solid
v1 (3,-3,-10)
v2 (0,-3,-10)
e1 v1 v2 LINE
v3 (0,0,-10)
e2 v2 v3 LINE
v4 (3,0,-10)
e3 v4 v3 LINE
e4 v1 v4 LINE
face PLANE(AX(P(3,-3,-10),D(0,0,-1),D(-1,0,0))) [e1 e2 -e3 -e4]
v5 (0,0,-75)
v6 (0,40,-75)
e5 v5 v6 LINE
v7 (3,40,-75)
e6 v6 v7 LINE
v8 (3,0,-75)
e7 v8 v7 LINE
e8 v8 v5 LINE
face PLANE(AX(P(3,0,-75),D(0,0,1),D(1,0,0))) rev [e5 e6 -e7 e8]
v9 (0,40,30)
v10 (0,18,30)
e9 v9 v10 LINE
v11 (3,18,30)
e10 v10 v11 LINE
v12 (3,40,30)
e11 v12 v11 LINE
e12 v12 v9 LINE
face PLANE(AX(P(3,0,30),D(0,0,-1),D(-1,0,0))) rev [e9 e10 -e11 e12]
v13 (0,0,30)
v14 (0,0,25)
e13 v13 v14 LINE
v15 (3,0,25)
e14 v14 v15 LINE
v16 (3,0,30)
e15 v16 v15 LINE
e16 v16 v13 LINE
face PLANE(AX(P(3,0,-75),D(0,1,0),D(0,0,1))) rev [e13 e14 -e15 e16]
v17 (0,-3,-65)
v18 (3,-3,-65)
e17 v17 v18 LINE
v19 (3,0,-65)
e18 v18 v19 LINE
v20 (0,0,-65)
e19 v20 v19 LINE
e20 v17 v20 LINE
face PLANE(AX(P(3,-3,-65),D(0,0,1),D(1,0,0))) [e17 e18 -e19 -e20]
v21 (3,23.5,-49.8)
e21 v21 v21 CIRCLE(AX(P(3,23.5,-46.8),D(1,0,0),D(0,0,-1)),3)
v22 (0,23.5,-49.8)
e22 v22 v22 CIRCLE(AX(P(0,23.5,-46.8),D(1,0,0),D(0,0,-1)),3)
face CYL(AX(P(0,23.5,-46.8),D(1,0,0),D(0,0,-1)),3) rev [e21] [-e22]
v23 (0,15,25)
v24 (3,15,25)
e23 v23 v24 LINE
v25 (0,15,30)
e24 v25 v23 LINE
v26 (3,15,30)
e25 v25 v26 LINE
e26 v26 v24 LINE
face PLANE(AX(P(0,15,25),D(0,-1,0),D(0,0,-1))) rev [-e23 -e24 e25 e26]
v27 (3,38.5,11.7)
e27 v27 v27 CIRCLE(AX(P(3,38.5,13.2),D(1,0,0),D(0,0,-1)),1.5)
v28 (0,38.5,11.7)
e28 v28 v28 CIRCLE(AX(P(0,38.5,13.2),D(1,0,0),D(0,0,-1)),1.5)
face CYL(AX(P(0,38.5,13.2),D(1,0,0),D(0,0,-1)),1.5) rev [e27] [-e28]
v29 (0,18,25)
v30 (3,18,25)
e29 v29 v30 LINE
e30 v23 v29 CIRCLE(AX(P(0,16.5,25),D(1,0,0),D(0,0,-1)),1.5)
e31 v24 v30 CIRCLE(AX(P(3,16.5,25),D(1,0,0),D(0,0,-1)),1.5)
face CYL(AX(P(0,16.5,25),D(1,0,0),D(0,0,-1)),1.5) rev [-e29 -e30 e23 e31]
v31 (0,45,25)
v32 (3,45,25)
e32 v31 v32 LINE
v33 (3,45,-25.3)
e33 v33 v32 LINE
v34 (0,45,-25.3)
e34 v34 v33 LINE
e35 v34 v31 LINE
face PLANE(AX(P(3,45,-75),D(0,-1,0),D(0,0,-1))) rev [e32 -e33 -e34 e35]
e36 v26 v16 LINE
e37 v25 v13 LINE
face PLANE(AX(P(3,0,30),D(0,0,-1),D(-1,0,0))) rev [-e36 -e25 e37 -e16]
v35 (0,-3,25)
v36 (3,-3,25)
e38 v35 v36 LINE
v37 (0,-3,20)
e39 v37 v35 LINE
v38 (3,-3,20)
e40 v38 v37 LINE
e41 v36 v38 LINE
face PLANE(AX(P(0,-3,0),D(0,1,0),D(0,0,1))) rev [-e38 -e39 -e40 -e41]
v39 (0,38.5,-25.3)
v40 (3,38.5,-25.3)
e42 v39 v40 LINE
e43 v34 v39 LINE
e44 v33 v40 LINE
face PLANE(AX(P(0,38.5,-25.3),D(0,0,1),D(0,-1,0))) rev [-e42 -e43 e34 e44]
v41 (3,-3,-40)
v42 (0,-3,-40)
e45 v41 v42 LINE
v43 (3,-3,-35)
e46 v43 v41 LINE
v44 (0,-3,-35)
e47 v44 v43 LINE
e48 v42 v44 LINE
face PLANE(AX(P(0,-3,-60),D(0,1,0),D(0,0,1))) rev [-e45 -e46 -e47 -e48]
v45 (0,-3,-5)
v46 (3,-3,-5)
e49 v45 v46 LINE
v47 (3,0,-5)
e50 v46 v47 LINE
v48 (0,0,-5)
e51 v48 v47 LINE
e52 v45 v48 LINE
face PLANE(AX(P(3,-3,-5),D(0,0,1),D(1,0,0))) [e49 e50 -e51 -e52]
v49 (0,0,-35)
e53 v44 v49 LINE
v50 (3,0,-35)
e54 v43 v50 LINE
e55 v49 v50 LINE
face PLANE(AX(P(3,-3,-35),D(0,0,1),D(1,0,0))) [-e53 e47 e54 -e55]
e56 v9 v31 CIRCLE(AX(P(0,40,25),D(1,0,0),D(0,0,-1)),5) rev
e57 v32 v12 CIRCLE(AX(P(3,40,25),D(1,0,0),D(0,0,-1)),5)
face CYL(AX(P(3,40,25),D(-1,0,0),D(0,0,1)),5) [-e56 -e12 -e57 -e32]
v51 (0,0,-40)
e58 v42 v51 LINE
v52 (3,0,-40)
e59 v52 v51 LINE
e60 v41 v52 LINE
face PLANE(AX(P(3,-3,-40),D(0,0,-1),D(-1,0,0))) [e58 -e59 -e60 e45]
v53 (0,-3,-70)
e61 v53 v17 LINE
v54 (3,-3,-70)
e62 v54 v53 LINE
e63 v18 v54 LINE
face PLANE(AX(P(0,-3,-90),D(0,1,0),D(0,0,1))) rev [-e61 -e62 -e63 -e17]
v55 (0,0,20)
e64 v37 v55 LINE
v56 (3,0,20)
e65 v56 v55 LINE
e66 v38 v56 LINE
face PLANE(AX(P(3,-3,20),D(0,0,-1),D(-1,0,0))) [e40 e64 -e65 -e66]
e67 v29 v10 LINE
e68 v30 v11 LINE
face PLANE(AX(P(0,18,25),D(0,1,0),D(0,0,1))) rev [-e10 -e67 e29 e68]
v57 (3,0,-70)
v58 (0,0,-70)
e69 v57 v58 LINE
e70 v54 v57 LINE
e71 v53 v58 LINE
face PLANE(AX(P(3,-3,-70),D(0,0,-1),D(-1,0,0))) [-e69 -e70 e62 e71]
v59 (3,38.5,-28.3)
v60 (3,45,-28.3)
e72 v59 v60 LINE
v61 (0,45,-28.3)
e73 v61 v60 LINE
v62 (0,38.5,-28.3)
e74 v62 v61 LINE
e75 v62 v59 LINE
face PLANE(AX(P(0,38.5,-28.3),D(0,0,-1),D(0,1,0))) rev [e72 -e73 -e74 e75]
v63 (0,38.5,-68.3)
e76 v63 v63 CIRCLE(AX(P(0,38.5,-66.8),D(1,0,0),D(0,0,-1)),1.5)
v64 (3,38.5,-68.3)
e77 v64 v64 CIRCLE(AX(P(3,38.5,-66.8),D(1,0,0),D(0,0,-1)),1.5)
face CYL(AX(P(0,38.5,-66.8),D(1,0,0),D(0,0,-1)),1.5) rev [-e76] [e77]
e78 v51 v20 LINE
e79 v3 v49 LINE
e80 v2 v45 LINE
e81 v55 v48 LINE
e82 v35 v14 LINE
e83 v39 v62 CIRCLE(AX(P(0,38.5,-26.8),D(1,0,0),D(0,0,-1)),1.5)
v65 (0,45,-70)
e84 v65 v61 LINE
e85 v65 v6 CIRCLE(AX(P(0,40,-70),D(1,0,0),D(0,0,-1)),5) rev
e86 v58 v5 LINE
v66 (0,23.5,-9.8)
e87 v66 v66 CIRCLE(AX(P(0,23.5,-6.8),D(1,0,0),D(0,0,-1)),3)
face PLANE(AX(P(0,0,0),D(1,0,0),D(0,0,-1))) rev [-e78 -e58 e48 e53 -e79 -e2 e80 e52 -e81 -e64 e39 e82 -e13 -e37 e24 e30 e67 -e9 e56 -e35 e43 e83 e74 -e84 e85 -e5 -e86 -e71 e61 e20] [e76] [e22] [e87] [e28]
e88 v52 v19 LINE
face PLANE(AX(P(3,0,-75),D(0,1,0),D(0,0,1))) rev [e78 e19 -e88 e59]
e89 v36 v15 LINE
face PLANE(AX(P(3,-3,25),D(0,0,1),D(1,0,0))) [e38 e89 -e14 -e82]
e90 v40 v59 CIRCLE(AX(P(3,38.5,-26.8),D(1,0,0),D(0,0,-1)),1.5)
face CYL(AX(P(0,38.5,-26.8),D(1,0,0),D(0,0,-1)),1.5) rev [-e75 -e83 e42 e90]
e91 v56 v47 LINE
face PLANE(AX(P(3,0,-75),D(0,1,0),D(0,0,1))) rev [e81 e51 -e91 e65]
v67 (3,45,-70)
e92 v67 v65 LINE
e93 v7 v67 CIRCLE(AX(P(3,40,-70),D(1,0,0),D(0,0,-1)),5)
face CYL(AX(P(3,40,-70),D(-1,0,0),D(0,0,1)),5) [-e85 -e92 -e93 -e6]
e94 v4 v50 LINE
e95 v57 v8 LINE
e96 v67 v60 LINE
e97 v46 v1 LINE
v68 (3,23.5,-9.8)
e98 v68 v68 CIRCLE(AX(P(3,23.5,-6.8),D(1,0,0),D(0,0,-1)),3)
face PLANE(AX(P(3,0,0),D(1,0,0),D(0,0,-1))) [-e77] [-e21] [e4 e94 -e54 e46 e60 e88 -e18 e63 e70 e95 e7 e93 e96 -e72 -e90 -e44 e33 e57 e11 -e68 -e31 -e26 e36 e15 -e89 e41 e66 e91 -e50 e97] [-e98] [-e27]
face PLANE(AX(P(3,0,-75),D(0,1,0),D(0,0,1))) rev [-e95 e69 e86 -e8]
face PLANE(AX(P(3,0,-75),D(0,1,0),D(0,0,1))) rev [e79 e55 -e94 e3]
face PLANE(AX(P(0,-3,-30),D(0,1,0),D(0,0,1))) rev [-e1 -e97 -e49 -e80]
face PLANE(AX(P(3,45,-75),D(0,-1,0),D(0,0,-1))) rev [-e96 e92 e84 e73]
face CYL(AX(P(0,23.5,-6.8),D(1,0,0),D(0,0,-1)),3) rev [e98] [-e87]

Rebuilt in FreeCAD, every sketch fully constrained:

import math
import FreeCAD as App
import Part
import Sketcher

V = App.Vector
Q = App.Units.Quantity


def edges_at(feature, points):
    """Names of the edges that pass closest to the given points."""
    edges = feature.Shape.Edges
    near = lambda p: min(range(len(edges)), key=lambda i: edges[i].distToShape(Part.Vertex(*p))[0])
    return sorted({f"Edge{near(p) + 1}" for p in points})

doc = App.newDocument("Part")
body = doc.addObject("PartDesign::Body", "Body")

sketch1 = body.newObject("Sketcher::SketchObject", "Sketch")
sketch1.AttachmentSupport = (doc.getObject("YZ_Plane"), [""])
sketch1.MapMode = "FlatFace"
sketch1.addGeometry([
    Part.LineSegment(V(45, 30, 0), V(0, 30, 0)),
    Part.LineSegment(V(0, 30, 0), V(0, -75, 0)),
    Part.LineSegment(V(0, -75, 0), V(45, -75, 0)),
    Part.LineSegment(V(45, -75, 0), V(45, 30, 0)),
], False)
sketch1.addConstraint([
    Sketcher.Constraint("Coincident", 0, 2, 1, 1),
    Sketcher.Constraint("Coincident", 1, 2, 2, 1),
    Sketcher.Constraint("Coincident", 2, 2, 3, 1),
    Sketcher.Constraint("Coincident", 3, 2, 0, 1),
    Sketcher.Constraint("Horizontal", 0),
    Sketcher.Constraint("Vertical", 1),
    Sketcher.Constraint("Horizontal", 2),
    Sketcher.Constraint("Vertical", 3),
    Sketcher.Constraint("PointOnObject", 0, 2, -2),
    Sketcher.Constraint("DistanceX", 0, 2, 0, 1, Q("45 mm")),
    Sketcher.Constraint("DistanceY", 1, 2, 1, 1, Q("105 mm")),
    Sketcher.Constraint("DistanceY", -1, 1, 0, 2, Q("30 mm")),
])
pad1 = body.newObject("PartDesign::Pad", "Pad")
pad1.Profile = sketch1
pad1.Length = 3

sketch2 = body.newObject("Sketcher::SketchObject", "Sketch001")
sketch2.AttachmentSupport = (doc.getObject("YZ_Plane"), [""])
sketch2.MapMode = "FlatFace"
sketch2.AttachmentOffset = App.Placement(V(0, 0, 3), App.Rotation())
sketch2.addGeometry([
    Part.Circle(V(23.5, -6.8, 0), V(0, 0, 1), 3),
    Part.Circle(V(23.5, -46.8, 0), V(0, 0, 1), 3),
    Part.Circle(V(38.5, -66.8, 0), V(0, 0, 1), 1.5),
    Part.Circle(V(38.5, 13.2, 0), V(0, 0, 1), 1.5),
    Part.LineSegment(V(45, -25.3, 0), V(38.5, -25.3, 0)),
    Part.ArcOfCircle(Part.Circle(V(38.5, -26.8, 0), V(0, 0, 1), 1.5), math.radians(90), math.radians(270)),
    Part.LineSegment(V(38.5, -28.3, 0), V(45, -28.3, 0)),
    Part.LineSegment(V(45, -28.3, 0), V(45, -25.3, 0)),
], False)
sketch2.addConstraint([
    Sketcher.Constraint("Tangent", 4, 2, 5, 1),
    Sketcher.Constraint("Tangent", 5, 2, 6, 1),
    Sketcher.Constraint("Coincident", 6, 2, 7, 1),
    Sketcher.Constraint("Coincident", 7, 2, 4, 1),
    Sketcher.Constraint("Horizontal", 4),
    Sketcher.Constraint("Horizontal", 6),
    Sketcher.Constraint("Vertical", 7),
    Sketcher.Constraint("Equal", 0, 1),
    Sketcher.Constraint("Equal", 2, 3),
    Sketcher.Constraint("Equal", 3, 5),
    Sketcher.Constraint("Vertical", 0, 3, 1, 3),
    Sketcher.Constraint("Vertical", 2, 3, 3, 3),
    Sketcher.Constraint("Vertical", 3, 3, 5, 3),
    Sketcher.Constraint("Diameter", 0, Q("6 mm")),
    Sketcher.Constraint("Diameter", 2, Q("3 mm")),
    Sketcher.Constraint("DistanceX", 4, 2, 4, 1, Q("6.5 mm")),
    Sketcher.Constraint("DistanceX", -1, 1, 6, 2, Q("45 mm")),
    Sketcher.Constraint("DistanceY", 1, 3, 0, 3, Q("40 mm")),
    Sketcher.Constraint("DistanceX", 1, 3, 2, 3, Q("15 mm")),
    Sketcher.Constraint("DistanceY", 2, 3, 1, 3, Q("20 mm")),
    Sketcher.Constraint("DistanceY", 0, 3, 3, 3, Q("20 mm")),
    Sketcher.Constraint("DistanceY", 1, 3, 5, 3, Q("20 mm")),
    Sketcher.Constraint("DistanceY", 0, 3, -1, 1, Q("6.8 mm")),
])
pocket1 = body.newObject("PartDesign::Pocket", "Pocket")
pocket1.Profile = sketch2
pocket1.Type = "ThroughAll"

sketch3 = body.newObject("Sketcher::SketchObject", "Sketch002")
sketch3.AttachmentSupport = (doc.getObject("YZ_Plane"), [""])
sketch3.MapMode = "FlatFace"
sketch3.AttachmentOffset = App.Placement(V(0, 0, 3), App.Rotation())
sketch3.addGeometry([
    Part.LineSegment(V(15, 30, 0), V(15, 25, 0)),
    Part.ArcOfCircle(Part.Circle(V(16.5, 25, 0), V(0, 0, 1), 1.5), math.radians(180), math.radians(360)),
    Part.LineSegment(V(18, 25, 0), V(18, 30, 0)),
    Part.LineSegment(V(18, 30, 0), V(15, 30, 0)),
], False)
sketch3.addConstraint([
    Sketcher.Constraint("Tangent", 0, 2, 1, 1),
    Sketcher.Constraint("Tangent", 1, 2, 2, 1),
    Sketcher.Constraint("Coincident", 2, 2, 3, 1),
    Sketcher.Constraint("Coincident", 3, 2, 0, 1),
    Sketcher.Constraint("Vertical", 0),
    Sketcher.Constraint("Vertical", 2),
    Sketcher.Constraint("Horizontal", 3),
    Sketcher.Constraint("Radius", 1, Q("1.5 mm")),
    Sketcher.Constraint("DistanceY", 0, 2, 0, 1, Q("5 mm")),
    Sketcher.Constraint("DistanceY", -1, 1, 1, 3, Q("25 mm")),
    Sketcher.Constraint("DistanceX", -1, 1, 0, 2, Q("15 mm")),
])
pocket2 = body.newObject("PartDesign::Pocket", "Pocket001")
pocket2.Profile = sketch3
pocket2.Type = "ThroughAll"
doc.recompute()

fillet = body.newObject("PartDesign::Fillet", "Fillet")
fillet.Base = (pocket2, edges_at(pocket2, [(1.5, 45, 30), (1.5, 45, -75)]))
fillet.Radius = 5

sketch4 = body.newObject("Sketcher::SketchObject", "Sketch003")
sketch4.AttachmentSupport = (doc.getObject("XZ_Plane"), [""])
sketch4.MapMode = "FlatFace"
sketch4.addGeometry([
    Part.LineSegment(V(0, 20, 0), V(0, 25, 0)),
    Part.LineSegment(V(0, 25, 0), V(3, 25, 0)),
    Part.LineSegment(V(3, 25, 0), V(3, 20, 0)),
    Part.LineSegment(V(3, 20, 0), V(0, 20, 0)),
], False)
sketch4.addConstraint([
    Sketcher.Constraint("Coincident", 0, 2, 1, 1),
    Sketcher.Constraint("Coincident", 1, 2, 2, 1),
    Sketcher.Constraint("Coincident", 2, 2, 3, 1),
    Sketcher.Constraint("Coincident", 3, 2, 0, 1),
    Sketcher.Constraint("Vertical", 0),
    Sketcher.Constraint("Horizontal", 1),
    Sketcher.Constraint("Vertical", 2),
    Sketcher.Constraint("Horizontal", 3),
    Sketcher.Constraint("PointOnObject", 0, 2, -2),
    Sketcher.Constraint("DistanceX", 1, 1, 1, 2, Q("3 mm")),
    Sketcher.Constraint("DistanceY", 0, 1, 0, 2, Q("5 mm")),
    Sketcher.Constraint("DistanceY", -1, 1, 0, 2, Q("25 mm")),
])
pad2 = body.newObject("PartDesign::Pad", "Pad001")
pad2.Profile = sketch4
pad2.Length = 3
doc.recompute()

linearpattern = body.newObject("PartDesign::LinearPattern", "LinearPattern")
linearpattern.Originals = [pad2]
linearpattern.Direction = (doc.getObject("Z_Axis"), [""])
linearpattern.Mode = "offset"
linearpattern.Offset = 30
linearpattern.Occurrences = 4
linearpattern.Reversed = True
body.Tip = linearpattern

doc.recompute()
